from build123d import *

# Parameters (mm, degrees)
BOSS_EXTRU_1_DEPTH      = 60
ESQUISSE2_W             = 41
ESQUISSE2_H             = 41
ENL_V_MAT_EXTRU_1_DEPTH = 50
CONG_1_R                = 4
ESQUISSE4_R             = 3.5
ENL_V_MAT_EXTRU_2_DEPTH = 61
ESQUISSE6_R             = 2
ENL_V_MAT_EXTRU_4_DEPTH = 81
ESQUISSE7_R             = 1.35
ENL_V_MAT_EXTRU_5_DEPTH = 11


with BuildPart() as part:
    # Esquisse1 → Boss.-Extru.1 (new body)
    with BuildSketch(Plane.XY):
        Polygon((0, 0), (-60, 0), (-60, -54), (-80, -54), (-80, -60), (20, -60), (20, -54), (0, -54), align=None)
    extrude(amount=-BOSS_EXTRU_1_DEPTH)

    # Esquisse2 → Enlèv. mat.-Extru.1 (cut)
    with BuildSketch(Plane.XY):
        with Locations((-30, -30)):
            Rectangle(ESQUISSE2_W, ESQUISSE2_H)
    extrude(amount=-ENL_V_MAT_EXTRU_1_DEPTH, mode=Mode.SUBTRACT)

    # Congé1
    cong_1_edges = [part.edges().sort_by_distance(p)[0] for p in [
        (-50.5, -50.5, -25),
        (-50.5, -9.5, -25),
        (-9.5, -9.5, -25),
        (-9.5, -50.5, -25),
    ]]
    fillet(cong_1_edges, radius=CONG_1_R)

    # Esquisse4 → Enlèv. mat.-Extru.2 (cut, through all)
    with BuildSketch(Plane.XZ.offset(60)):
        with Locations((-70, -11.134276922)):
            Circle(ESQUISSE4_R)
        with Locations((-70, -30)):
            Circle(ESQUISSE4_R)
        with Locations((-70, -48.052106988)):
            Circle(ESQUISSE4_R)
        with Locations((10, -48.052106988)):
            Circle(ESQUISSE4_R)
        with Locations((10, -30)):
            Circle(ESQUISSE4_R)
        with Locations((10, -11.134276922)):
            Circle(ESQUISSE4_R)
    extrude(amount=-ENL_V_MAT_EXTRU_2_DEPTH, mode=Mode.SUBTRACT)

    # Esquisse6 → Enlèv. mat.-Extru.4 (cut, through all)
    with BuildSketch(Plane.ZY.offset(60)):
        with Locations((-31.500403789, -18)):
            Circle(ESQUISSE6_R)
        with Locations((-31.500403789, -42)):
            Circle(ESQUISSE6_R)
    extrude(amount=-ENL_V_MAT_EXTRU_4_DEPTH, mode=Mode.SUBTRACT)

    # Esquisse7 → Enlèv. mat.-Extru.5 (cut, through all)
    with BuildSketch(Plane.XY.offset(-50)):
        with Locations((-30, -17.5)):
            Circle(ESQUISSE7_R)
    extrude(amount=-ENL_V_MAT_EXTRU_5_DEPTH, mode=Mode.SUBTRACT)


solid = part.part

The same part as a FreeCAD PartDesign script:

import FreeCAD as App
import Part
import Sketcher
from FreeCAD import Vector


def edges_at(feature, points):
    """Names of the edges that pass closest to the given points."""
    edges = feature.Shape.Edges
    near = lambda p: min(range(len(edges)), key=lambda i: edges[i].distToShape(Part.Vertex(*p))[0])
    return sorted({f"Edge{near(p) + 1}" for p in points})


def add_polygon(sketch, points):
    """Adds a closed chain of lines whose ends are joined by coincident constraints."""
    first, n = sketch.GeometryCount, len(points)
    for a, b in zip(points, points[1:] + points[:1]):
        sketch.addGeometry(Part.LineSegment(App.Vector(*a, 0), App.Vector(*b, 0)), False)
    for i in range(n):
        sketch.addConstraint(Sketcher.Constraint("Coincident", first + i, 2, first + (i + 1) % n, 1))

doc = App.newDocument("Part")
params = doc.addObject("Spreadsheet::Sheet", "Params")
for row, (alias, value) in enumerate([
    ("sketch1_width", "60 mm"),
    ("sketch1_width2", "20 mm"),
    ("sketch1_height", "54 mm"),
    ("sketch1_height2", "6 mm"),
    ("pad1_length", "60 mm"),
    ("sketch2_width", "41 mm"),
    ("pocket1_length", "50 mm"),
    ("fillet_radius", "4 mm"),
    ("sketch3_diameter", "7 mm"),
    ("sketch4_diameter", "4 mm"),
    ("sketch5_diameter", "2.7 mm"),
], start=1):
    params.set(f"A{row}", alias)
    params.set(f"B{row}", "=" + value)
    params.setAlias(f"B{row}", alias)

body = doc.addObject("PartDesign::Body", "Body")

sketch1 = body.newObject("Sketcher::SketchObject", "Sketch")
sketch1.AttachmentSupport = (doc.getObject("XY_Plane"), [""])
sketch1.MapMode = "FlatFace"
add_polygon(sketch1, [(0, 0), (-60, 0), (-60, -54), (-80, -54), (-80, -60), (20, -60), (20, -54), (0, -54)])
sketch1.addConstraint(Sketcher.Constraint("Horizontal", 0))
sketch1.addConstraint(Sketcher.Constraint("Vertical", 1))
sketch1.addConstraint(Sketcher.Constraint("Horizontal", 2))
sketch1.addConstraint(Sketcher.Constraint("Vertical", 3))
sketch1.addConstraint(Sketcher.Constraint("Horizontal", 4))
sketch1.addConstraint(Sketcher.Constraint("Vertical", 5))
sketch1.addConstraint(Sketcher.Constraint("Horizontal", 6))
sketch1.addConstraint(Sketcher.Constraint("Vertical", 7))
sketch1.addConstraint(Sketcher.Constraint("Coincident", 7, 2, -1, 1))
sketch1.addConstraint(Sketcher.Constraint("Horizontal", 2, 2, 5, 2))
sketch1.addConstraint(Sketcher.Constraint("Equal", 2, 6))
sketch1.addConstraint(Sketcher.Constraint("DistanceX", 0, 2, 0, 1, 60.0))
sketch1.addConstraint(Sketcher.Constraint("DistanceX", 2, 2, 2, 1, 20.0))
sketch1.addConstraint(Sketcher.Constraint("DistanceY", 1, 2, 1, 1, 54.0))
sketch1.addConstraint(Sketcher.Constraint("DistanceY", 3, 2, 3, 1, 6.0))
sketch1.setExpression("Constraints[19]", "Params.sketch1_width")
sketch1.setExpression("Constraints[20]", "Params.sketch1_width2")
sketch1.setExpression("Constraints[21]", "Params.sketch1_height")
sketch1.setExpression("Constraints[22]", "Params.sketch1_height2")
pad1 = body.newObject("PartDesign::Pad", "Pad")
pad1.Profile = sketch1
pad1.setExpression("Length", "Params.pad1_length")
pad1.Reversed = True

sketch2 = body.newObject("Sketcher::SketchObject", "Sketch001")
sketch2.AttachmentSupport = (doc.getObject("XY_Plane"), [""])
sketch2.MapMode = "FlatFace"
add_polygon(sketch2, [(-50, -10), (-50, -50), (-10, -50), (-10, -10)])
sketch2.addConstraint(Sketcher.Constraint("Vertical", 0))
sketch2.addConstraint(Sketcher.Constraint("Horizontal", 1))
sketch2.addConstraint(Sketcher.Constraint("Vertical", 2))
sketch2.addConstraint(Sketcher.Constraint("Horizontal", 3))
sketch2.addConstraint(Sketcher.Constraint("Equal", 3, 0))
sketch2.addConstraint(Sketcher.Constraint("DistanceX", 1, 1, 1, 2, 41.0))
sketch2.addConstraint(Sketcher.Constraint("DistanceX", 0, 2, -1, 1, 50.5))
sketch2.addConstraint(Sketcher.Constraint("DistanceY", 0, 2, -1, 1, 50.5))
sketch2.setExpression("Constraints[9]", "Params.sketch2_width")
pocket1 = body.newObject("PartDesign::Pocket", "Pocket")
pocket1.Profile = sketch2
pocket1.setExpression("Length", "Params.pocket1_length")
doc.recompute()

fillet = body.newObject("PartDesign::Fillet", "Fillet")
fillet.Base = (pocket1, edges_at(pocket1, [
    (-50.5, -50.5, -25),
    (-50.5, -9.5, -25),
    (-9.5, -9.5, -25),
    (-9.5, -50.5, -25),
]))
fillet.setExpression("Radius", "Params.fillet_radius")

sketch3 = body.newObject("Sketcher::SketchObject", "Sketch002")
sketch3.AttachmentSupport = (doc.getObject("XZ_Plane"), [""])
sketch3.MapMode = "FlatFace"
sketch3.AttachmentOffset = App.Placement(Vector(0, 0, 60), App.Rotation())
sketch3.addGeometry(Part.Circle(Vector(-70, -11.1, 0), Vector(0, 0, 1), 3.5), False)
sketch3.addGeometry(Part.Circle(Vector(-70, -30, 0), Vector(0, 0, 1), 3.5), False)
sketch3.addGeometry(Part.Circle(Vector(-70, -48.1, 0), Vector(0, 0, 1), 3.5), False)
sketch3.addGeometry(Part.Circle(Vector(10, -48.1, 0), Vector(0, 0, 1), 3.5), False)
sketch3.addGeometry(Part.Circle(Vector(10, -30, 0), Vector(0, 0, 1), 3.5), False)
sketch3.addGeometry(Part.Circle(Vector(10, -11.1, 0), Vector(0, 0, 1), 3.5), False)
sketch3.addConstraint(Sketcher.Constraint("Equal", 0, 1))
sketch3.addConstraint(Sketcher.Constraint("Equal", 1, 2))
sketch3.addConstraint(Sketcher.Constraint("Equal", 2, 3))
sketch3.addConstraint(Sketcher.Constraint("Equal", 3, 4))
sketch3.addConstraint(Sketcher.Constraint("Equal", 4, 5))
sketch3.addConstraint(Sketcher.Constraint("Horizontal", 2, 3, 3, 3))
sketch3.addConstraint(Sketcher.Constraint("Horizontal", 1, 3, 4, 3))
sketch3.addConstraint(Sketcher.Constraint("Horizontal", 0, 3, 5, 3))
sketch3.addConstraint(Sketcher.Constraint("Vertical", 0, 3, 1, 3))
sketch3.addConstraint(Sketcher.Constraint("Vertical", 1, 3, 2, 3))
sketch3.addConstraint(Sketcher.Constraint("Vertical", 3, 3, 4, 3))
sketch3.addConstraint(Sketcher.Constraint("Vertical", 4, 3, 5, 3))
sketch3.addConstraint(Sketcher.Constraint("Diameter", 0, 7.0))
sketch3.addConstraint(Sketcher.Constraint("DistanceX", 0, 3, -1, 1, 70.0))
sketch3.addConstraint(Sketcher.Constraint("DistanceY", 1, 3, -1, 1, 30.0))
sketch3.addConstraint(Sketcher.Constraint("DistanceX", -1, 1, 3, 3, 10.0))
sketch3.addConstraint(Sketcher.Constraint("DistanceY", 2, 3, 0, 3, 36.91783))
sketch3.addConstraint(Sketcher.Constraint("DistanceY", 0, 3, -1, 1, 11.134277))
sketch3.setExpression("Constraints[12]", "Params.sketch3_diameter")
pocket2 = body.newObject("PartDesign::Pocket", "Pocket001")
pocket2.Profile = sketch3
pocket2.Type = "ThroughAll"

sketch4 = body.newObject("Sketcher::SketchObject", "Sketch003")
sketch4.AttachmentSupport = (doc.getObject("YZ_Plane"), [""])
sketch4.MapMode = "FlatFace"
sketch4.AttachmentOffset = App.Placement(Vector(0, 0, -60), App.Rotation())
sketch4.addGeometry(Part.Circle(Vector(-18, -31.5, 0), Vector(0, 0, 1), 2), False)
sketch4.addGeometry(Part.Circle(Vector(-42, -31.5, 0), Vector(0, 0, 1), 2), False)
sketch4.addConstraint(Sketcher.Constraint("Equal", 0, 1))
sketch4.addConstraint(Sketcher.Constraint("Horizontal", 0, 3, 1, 3))
sketch4.addConstraint(Sketcher.Constraint("Diameter", 0, 4.0))
sketch4.addConstraint(Sketcher.Constraint("DistanceX", 0, 3, -1, 1, 18.0))
sketch4.addConstraint(Sketcher.Constraint("DistanceX", 1, 3, -1, 1, 42.0))
sketch4.addConstraint(Sketcher.Constraint("DistanceY", 0, 3, -1, 1, 31.500404))
sketch4.setExpression("Constraints[2]", "Params.sketch4_diameter")
pocket3 = body.newObject("PartDesign::Pocket", "Pocket002")
pocket3.Profile = sketch4
pocket3.Type = "ThroughAll"
pocket3.Reversed = True

sketch5 = body.newObject("Sketcher::SketchObject", "Sketch004")
sketch5.AttachmentSupport = (doc.getObject("XY_Plane"), [""])
sketch5.MapMode = "FlatFace"
sketch5.AttachmentOffset = App.Placement(Vector(0, 0, -50), App.Rotation())
sketch5.addGeometry(Part.Circle(Vector(-30, -17.5, 0), Vector(0, 0, 1), 1.4), False)
sketch5.addConstraint(Sketcher.Constraint("Diameter", 0, 2.7))
sketch5.addConstraint(Sketcher.Constraint("DistanceX", 0, 3, -1, 1, 30.0))
sketch5.addConstraint(Sketcher.Constraint("DistanceY", 0, 3, -1, 1, 17.5))
sketch5.setExpression("Constraints[0]", "Params.sketch5_diameter")
pocket4 = body.newObject("PartDesign::Pocket", "Pocket003")
pocket4.Profile = sketch5
pocket4.Type = "ThroughAll"

doc.recompute()
